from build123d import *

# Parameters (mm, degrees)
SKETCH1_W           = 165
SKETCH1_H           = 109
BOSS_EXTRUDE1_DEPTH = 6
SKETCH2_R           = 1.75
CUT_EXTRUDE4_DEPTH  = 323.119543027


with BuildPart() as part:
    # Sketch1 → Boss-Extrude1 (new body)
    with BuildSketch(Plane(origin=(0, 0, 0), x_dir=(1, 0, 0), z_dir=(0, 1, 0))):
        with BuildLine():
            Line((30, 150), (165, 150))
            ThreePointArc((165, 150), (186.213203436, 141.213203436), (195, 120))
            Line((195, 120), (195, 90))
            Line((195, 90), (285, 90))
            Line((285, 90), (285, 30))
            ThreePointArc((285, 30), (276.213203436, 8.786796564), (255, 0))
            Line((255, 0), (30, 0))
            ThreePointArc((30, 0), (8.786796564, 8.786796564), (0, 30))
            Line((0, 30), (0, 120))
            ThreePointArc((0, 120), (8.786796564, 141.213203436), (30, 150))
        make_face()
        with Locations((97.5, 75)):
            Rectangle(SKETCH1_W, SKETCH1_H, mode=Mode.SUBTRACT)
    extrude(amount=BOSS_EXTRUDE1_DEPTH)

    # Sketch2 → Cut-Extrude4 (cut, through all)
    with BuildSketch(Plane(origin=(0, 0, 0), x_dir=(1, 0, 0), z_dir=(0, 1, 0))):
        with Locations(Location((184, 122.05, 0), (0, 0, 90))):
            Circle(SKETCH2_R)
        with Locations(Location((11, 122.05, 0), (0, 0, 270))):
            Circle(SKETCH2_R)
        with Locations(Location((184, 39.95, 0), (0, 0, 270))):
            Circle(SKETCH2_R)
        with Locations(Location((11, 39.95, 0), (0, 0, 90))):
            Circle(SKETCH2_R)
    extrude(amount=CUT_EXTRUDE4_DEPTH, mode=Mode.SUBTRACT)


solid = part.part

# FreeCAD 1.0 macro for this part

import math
import FreeCAD as App
import Part
import Sketcher

V = App.Vector
Q = App.Units.Quantity


def add_polygon(sketch, points):
    """Adds a closed chain of lines whose ends are joined by coincident constraints."""
    first, n = sketch.GeometryCount, len(points)
    for a, b in zip(points, points[1:] + points[:1]):
        sketch.addGeometry(Part.LineSegment(App.Vector(*a, 0), App.Vector(*b, 0)), False)
    for i in range(n):
        sketch.addConstraint(Sketcher.Constraint("Coincident", first + i, 2, first + (i + 1) % n, 1))

doc = App.newDocument("Part")
body = doc.addObject("PartDesign::Body", "Body")

# Sketch on XZ plane
sketch1 = doc.addObject("Sketcher::SketchObject", "Sketch")
body.addObject(sketch1)
sketch1.AttachmentSupport = (doc.XZ_Plane, [""])
sketch1.MapMode = "FlatFace"
sketch1.addGeometry(Part.LineSegment(V(165, -150, 0), V(30, -150, 0)), False)  # 0
sketch1.addGeometry(Part.ArcOfCircle(Part.Circle(V(30, -120, 0), V(0, 0, 1), 30), math.radians(180), math.radians(270)), False)  # 1
sketch1.addGeometry(Part.LineSegment(V(0, -120, 0), V(0, -30, 0)), False)  # 2
sketch1.addGeometry(Part.ArcOfCircle(Part.Circle(V(30, -30, 0), V(0, 0, 1), 30), math.radians(90), math.radians(180)), False)  # 3
sketch1.addGeometry(Part.LineSegment(V(30, 0, 0), V(255, 0, 0)), False)  # 4
sketch1.addGeometry(Part.ArcOfCircle(Part.Circle(V(255, -30, 0), V(0, 0, 1), 30), math.radians(0), math.radians(90)), False)  # 5
sketch1.addGeometry(Part.LineSegment(V(285, -30, 0), V(285, -90, 0)), False)  # 6
sketch1.addGeometry(Part.LineSegment(V(285, -90, 0), V(195, -90, 0)), False)  # 7
sketch1.addGeometry(Part.LineSegment(V(195, -90, 0), V(195, -120, 0)), False)  # 8
sketch1.addGeometry(Part.ArcOfCircle(Part.Circle(V(165, -120, 0), V(0, 0, 1), 30), math.radians(-90), math.radians(0)), False)  # 9
add_polygon(sketch1, [(15, -20), (15, -130), (180, -130), (180, -20)])  # lines 10-13
sketch1.addConstraint([
    Sketcher.Constraint("Tangent", 0, 2, 1, 2),
    Sketcher.Constraint("Tangent", 1, 1, 2, 1),
    Sketcher.Constraint("Tangent", 2, 2, 3, 2),
    Sketcher.Constraint("Tangent", 3, 1, 4, 1),
    Sketcher.Constraint("Tangent", 4, 2, 5, 2),
    Sketcher.Constraint("Tangent", 5, 1, 6, 1),
    Sketcher.Constraint("Coincident", 6, 2, 7, 1),
    Sketcher.Constraint("Coincident", 7, 2, 8, 1),
    Sketcher.Constraint("Tangent", 8, 2, 9, 2),
    Sketcher.Constraint("Tangent", 9, 1, 0, 1),
    Sketcher.Constraint("Horizontal", 0),
    Sketcher.Constraint("Vertical", 2),
    Sketcher.Constraint("Horizontal", 4),
    Sketcher.Constraint("Vertical", 6),
    Sketcher.Constraint("Horizontal", 7),
    Sketcher.Constraint("Vertical", 8),
    Sketcher.Constraint("Vertical", 10),
    Sketcher.Constraint("Horizontal", 11),
    Sketcher.Constraint("Vertical", 12),
    Sketcher.Constraint("Horizontal", 13),
    Sketcher.Constraint("Equal", 1, 3),
    Sketcher.Constraint("Equal", 3, 5),
    Sketcher.Constraint("Equal", 5, 9),
    Sketcher.Constraint("PointOnObject", 1, 1, -2),
    Sketcher.Constraint("PointOnObject", 3, 1, -1),
    Sketcher.Constraint("Equal", 7, 2),
    Sketcher.Constraint("Radius", 1, Q("30 mm")),
    Sketcher.Constraint("DistanceX", 0, 2, 0, 1, Q("135 mm")),
    Sketcher.Constraint("DistanceX", 4, 1, 4, 2, Q("225 mm")),
    Sketcher.Constraint("DistanceX", 11, 1, 11, 2, Q("165 mm")),
    Sketcher.Constraint("DistanceY", 6, 2, 6, 1, Q("60 mm")),
    Sketcher.Constraint("DistanceY", 10, 2, 10, 1, Q("109 mm")),
    Sketcher.Constraint("DistanceX", -1, 1, 10, 2, Q("15 mm")),
    Sketcher.Constraint("DistanceY", 10, 2, -1, 1, Q("129.5 mm")),
])
pad1 = doc.addObject("PartDesign::Pad", "Pad")
body.addObject(pad1)
pad1.Profile = sketch1
pad1.Length = 6
pad1.Reversed = True

# Sketch on XZ plane
sketch2 = doc.addObject("Sketcher::SketchObject", "Sketch001")
body.addObject(sketch2)
sketch2.AttachmentSupport = (doc.XZ_Plane, [""])
sketch2.MapMode = "FlatFace"
sketch2.addGeometry([
    Part.Circle(V(184, -122, 0), V(0, 0, 1), 1.8),
    Part.Circle(V(11, -122, 0), V(0, 0, 1), 1.8),
    Part.Circle(V(184, -40, 0), V(0, 0, 1), 1.8),
    Part.Circle(V(11, -40, 0), V(0, 0, 1), 1.8),
], False)
sketch2.addConstraint([
    Sketcher.Constraint("Equal", 0, 1),
    Sketcher.Constraint("Equal", 1, 2),
    Sketcher.Constraint("Equal", 2, 3),
    Sketcher.Constraint("Horizontal", 0, 3, 1, 3),
    Sketcher.Constraint("Horizontal", 2, 3, 3, 3),
    Sketcher.Constraint("Vertical", 0, 3, 2, 3),
    Sketcher.Constraint("Vertical", 1, 3, 3, 3),
    Sketcher.Constraint("Diameter", 0, Q("3.5 mm")),
    Sketcher.Constraint("DistanceX", -1, 1, 0, 3, Q("184 mm")),
    Sketcher.Constraint("DistanceX", -1, 1, 1, 3, Q("11 mm")),
    Sketcher.Constraint("DistanceY", 0, 3, 2, 3, Q("82.1 mm")),
    Sketcher.Constraint("DistanceY", 0, 3, -1, 1, Q("122.05 mm")),
])
pocket1 = doc.addObject("PartDesign::Pocket", "Pocket")
body.addObject(pocket1)
pocket1.Profile = sketch2
pocket1.Type = "ThroughAll"

doc.recompute()
